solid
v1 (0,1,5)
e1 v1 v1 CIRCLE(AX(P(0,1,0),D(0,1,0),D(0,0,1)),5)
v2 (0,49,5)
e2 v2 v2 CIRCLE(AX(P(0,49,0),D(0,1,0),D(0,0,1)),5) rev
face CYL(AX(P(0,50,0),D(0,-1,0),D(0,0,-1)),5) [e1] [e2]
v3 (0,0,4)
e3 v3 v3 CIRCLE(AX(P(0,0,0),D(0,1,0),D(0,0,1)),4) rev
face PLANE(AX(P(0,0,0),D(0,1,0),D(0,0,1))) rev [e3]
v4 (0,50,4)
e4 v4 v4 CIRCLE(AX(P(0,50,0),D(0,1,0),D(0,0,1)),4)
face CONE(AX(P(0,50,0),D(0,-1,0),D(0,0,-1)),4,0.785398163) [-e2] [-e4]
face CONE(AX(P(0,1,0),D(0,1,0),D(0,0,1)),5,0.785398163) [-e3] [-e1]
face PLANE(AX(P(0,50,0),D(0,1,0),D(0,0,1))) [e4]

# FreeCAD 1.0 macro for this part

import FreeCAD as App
import Part
import Sketcher
from FreeCAD import Vector


def edges_at(feature, points):
    """Names of the edges that pass closest to the given points."""
    edges = feature.Shape.Edges
    near = lambda p: min(range(len(edges)), key=lambda i: edges[i].distToShape(Part.Vertex(*p))[0])
    return sorted({f"Edge{near(p) + 1}" for p in points})

doc = App.newDocument("Part")
body = doc.addObject("PartDesign::Body", "Body")

sketch1 = doc.addObject("Sketcher::SketchObject", "Sketch")
body.addObject(sketch1)
sketch1.AttachmentSupport = (doc.XZ_Plane, [""])
sketch1.MapMode = "FlatFace"
sketch1.addGeometry(Part.Circle(Vector(0, 0, 0), Vector(0, 0, 1), 5), False)
sketch1.addConstraint([
    Sketcher.Constraint("Coincident", 0, 3, -1, 1),
    Sketcher.Constraint("Diameter", 0, 10.0),
])
pad1 = doc.addObject("PartDesign::Pad", "Pad")
body.addObject(pad1)
pad1.Profile = sketch1
pad1.Length = 50
pad1.Reversed = True
doc.recompute()

chamfer = doc.addObject("PartDesign::Chamfer", "Chamfer")
body.addObject(chamfer)
chamfer.Base = (pad1, edges_at(pad1, [(0, 0, -5), (0, 50, -5)]))
chamfer.Size = 1

doc.recompute()
